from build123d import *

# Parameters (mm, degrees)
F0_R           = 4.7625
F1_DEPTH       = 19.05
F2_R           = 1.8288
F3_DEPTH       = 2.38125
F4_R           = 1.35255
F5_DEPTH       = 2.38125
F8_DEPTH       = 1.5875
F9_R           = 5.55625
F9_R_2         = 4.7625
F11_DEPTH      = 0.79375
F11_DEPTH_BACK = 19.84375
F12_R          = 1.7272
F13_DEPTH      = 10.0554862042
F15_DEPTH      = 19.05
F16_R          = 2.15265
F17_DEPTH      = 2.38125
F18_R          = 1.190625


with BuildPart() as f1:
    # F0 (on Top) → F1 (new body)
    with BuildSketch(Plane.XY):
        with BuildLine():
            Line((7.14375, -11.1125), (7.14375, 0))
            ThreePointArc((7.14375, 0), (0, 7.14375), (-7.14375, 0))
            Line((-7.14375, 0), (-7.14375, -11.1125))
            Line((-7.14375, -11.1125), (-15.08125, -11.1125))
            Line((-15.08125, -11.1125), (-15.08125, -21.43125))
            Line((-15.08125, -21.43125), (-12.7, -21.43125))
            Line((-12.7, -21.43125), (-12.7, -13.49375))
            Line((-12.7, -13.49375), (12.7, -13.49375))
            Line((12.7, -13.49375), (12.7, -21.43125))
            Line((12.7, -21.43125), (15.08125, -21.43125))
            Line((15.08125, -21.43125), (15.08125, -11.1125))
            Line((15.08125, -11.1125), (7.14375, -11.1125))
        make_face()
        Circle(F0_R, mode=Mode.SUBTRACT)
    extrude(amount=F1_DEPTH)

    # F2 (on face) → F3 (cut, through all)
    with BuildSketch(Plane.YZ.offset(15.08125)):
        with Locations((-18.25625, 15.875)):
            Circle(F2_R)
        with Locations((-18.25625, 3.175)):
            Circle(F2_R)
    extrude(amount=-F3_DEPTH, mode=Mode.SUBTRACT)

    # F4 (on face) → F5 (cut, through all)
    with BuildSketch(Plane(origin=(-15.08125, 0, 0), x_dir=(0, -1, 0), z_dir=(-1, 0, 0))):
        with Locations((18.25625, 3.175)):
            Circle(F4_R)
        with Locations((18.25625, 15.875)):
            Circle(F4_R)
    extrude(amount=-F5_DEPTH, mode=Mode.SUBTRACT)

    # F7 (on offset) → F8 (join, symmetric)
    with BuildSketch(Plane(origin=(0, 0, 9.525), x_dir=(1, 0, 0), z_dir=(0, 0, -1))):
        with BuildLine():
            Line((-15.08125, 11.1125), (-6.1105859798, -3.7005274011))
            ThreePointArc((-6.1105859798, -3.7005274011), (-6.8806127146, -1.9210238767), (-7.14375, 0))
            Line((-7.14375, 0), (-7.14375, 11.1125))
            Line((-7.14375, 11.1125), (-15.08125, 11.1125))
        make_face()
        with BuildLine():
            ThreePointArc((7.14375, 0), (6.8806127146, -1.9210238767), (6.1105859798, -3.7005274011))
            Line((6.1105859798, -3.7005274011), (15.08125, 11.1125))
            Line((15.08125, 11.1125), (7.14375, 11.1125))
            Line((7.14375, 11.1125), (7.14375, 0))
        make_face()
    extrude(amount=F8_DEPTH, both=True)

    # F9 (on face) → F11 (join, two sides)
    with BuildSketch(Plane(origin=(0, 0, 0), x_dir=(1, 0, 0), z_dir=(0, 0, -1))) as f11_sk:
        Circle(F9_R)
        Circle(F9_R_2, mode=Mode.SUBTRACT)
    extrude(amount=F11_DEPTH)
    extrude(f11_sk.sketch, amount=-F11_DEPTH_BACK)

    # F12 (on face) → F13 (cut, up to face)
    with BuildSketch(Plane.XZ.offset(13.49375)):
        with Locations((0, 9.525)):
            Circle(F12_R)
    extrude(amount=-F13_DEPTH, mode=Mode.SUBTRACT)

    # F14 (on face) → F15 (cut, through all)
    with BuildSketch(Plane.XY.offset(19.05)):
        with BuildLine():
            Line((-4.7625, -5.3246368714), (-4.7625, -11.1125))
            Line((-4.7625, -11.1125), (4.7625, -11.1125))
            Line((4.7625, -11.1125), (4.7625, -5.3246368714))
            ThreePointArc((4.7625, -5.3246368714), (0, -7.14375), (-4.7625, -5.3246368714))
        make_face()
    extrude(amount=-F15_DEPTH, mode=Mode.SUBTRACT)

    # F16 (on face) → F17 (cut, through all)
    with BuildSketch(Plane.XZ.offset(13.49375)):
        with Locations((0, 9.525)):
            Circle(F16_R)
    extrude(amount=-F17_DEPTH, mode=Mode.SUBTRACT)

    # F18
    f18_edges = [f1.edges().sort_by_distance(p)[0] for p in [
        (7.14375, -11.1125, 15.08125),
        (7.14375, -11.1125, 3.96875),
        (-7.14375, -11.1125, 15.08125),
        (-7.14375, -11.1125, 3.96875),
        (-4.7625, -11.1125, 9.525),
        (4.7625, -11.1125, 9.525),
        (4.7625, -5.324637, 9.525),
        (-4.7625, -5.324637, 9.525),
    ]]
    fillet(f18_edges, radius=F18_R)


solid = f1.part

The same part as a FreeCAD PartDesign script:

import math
import FreeCAD as App
import Part
import Sketcher
from FreeCAD import Vector
Q = App.Units.Quantity


def edges_at(feature, points):
    """Names of the edges that pass closest to the given points."""
    edges = feature.Shape.Edges
    near = lambda p: min(range(len(edges)), key=lambda i: edges[i].distToShape(Part.Vertex(*p))[0])
    return sorted({f"Edge{near(p) + 1}" for p in points})

doc = App.newDocument("Part")
body = doc.addObject("PartDesign::Body", "Body")

sketch1 = body.newObject("Sketcher::SketchObject", "Sketch")
sketch1.AttachmentSupport = (doc.getObject("XY_Plane"), [""])
sketch1.MapMode = "FlatFace"
sketch1.addGeometry(Part.LineSegment(Vector(7.14375, -11.1125, 0), Vector(7.14375, 0, 0)), False)
sketch1.addGeometry(Part.ArcOfCircle(Part.Circle(Vector(0, 0, 0), Vector(0, 0, 1), 7.14375), math.radians(0), math.radians(180)), False)
sketch1.addGeometry(Part.LineSegment(Vector(-7.14375, 0, 0), Vector(-7.14375, -11.1125, 0)), False)
sketch1.addGeometry(Part.LineSegment(Vector(-7.14375, -11.1125, 0), Vector(-15.08125, -11.1125, 0)), False)
sketch1.addGeometry(Part.LineSegment(Vector(-15.08125, -11.1125, 0), Vector(-15.08125, -21.43125, 0)), False)
sketch1.addGeometry(Part.LineSegment(Vector(-15.08125, -21.43125, 0), Vector(-12.7, -21.43125, 0)), False)
sketch1.addGeometry(Part.LineSegment(Vector(-12.7, -21.43125, 0), Vector(-12.7, -13.49375, 0)), False)
sketch1.addGeometry(Part.LineSegment(Vector(-12.7, -13.49375, 0), Vector(12.7, -13.49375, 0)), False)
sketch1.addGeometry(Part.LineSegment(Vector(12.7, -13.49375, 0), Vector(12.7, -21.43125, 0)), False)
sketch1.addGeometry(Part.LineSegment(Vector(12.7, -21.43125, 0), Vector(15.08125, -21.43125, 0)), False)
sketch1.addGeometry(Part.LineSegment(Vector(15.08125, -21.43125, 0), Vector(15.08125, -11.1125, 0)), False)
sketch1.addGeometry(Part.LineSegment(Vector(15.08125, -11.1125, 0), Vector(7.14375, -11.1125, 0)), False)
sketch1.addGeometry(Part.Circle(Vector(0, 0, 0), Vector(0, 0, 1), 4.7625), False)
sketch1.addConstraint(Sketcher.Constraint("Tangent", 0, 2, 1, 1))
sketch1.addConstraint(Sketcher.Constraint("Tangent", 1, 2, 2, 1))
sketch1.addConstraint(Sketcher.Constraint("Coincident", 2, 2, 3, 1))
sketch1.addConstraint(Sketcher.Constraint("Coincident", 3, 2, 4, 1))
sketch1.addConstraint(Sketcher.Constraint("Coincident", 4, 2, 5, 1))
sketch1.addConstraint(Sketcher.Constraint("Coincident", 5, 2, 6, 1))
sketch1.addConstraint(Sketcher.Constraint("Coincident", 6, 2, 7, 1))
sketch1.addConstraint(Sketcher.Constraint("Coincident", 7, 2, 8, 1))
sketch1.addConstraint(Sketcher.Constraint("Coincident", 8, 2, 9, 1))
sketch1.addConstraint(Sketcher.Constraint("Coincident", 9, 2, 10, 1))
sketch1.addConstraint(Sketcher.Constraint("Coincident", 10, 2, 11, 1))
sketch1.addConstraint(Sketcher.Constraint("Coincident", 11, 2, 0, 1))
sketch1.addConstraint(Sketcher.Constraint("Vertical", 0))
sketch1.addConstraint(Sketcher.Constraint("Vertical", 2))
sketch1.addConstraint(Sketcher.Constraint("Horizontal", 3))
sketch1.addConstraint(Sketcher.Constraint("Vertical", 4))
sketch1.addConstraint(Sketcher.Constraint("Horizontal", 5))
sketch1.addConstraint(Sketcher.Constraint("Vertical", 6))
sketch1.addConstraint(Sketcher.Constraint("Horizontal", 7))
sketch1.addConstraint(Sketcher.Constraint("Vertical", 8))
sketch1.addConstraint(Sketcher.Constraint("Horizontal", 9))
sketch1.addConstraint(Sketcher.Constraint("Vertical", 10))
sketch1.addConstraint(Sketcher.Constraint("Horizontal", 11))
sketch1.addConstraint(Sketcher.Constraint("Coincident", 1, 3, -1, 1))
sketch1.addConstraint(Sketcher.Constraint("Coincident", 12, 3, -1, 1))
sketch1.addConstraint(Sketcher.Constraint("Symmetric", 5, 2, 8, 2, -2))
sketch1.addConstraint(Sketcher.Constraint("Symmetric", 3, 2, 10, 2, -2))
sketch1.addConstraint(Sketcher.Constraint("Equal", 11, 6))
sketch1.addConstraint(Sketcher.Constraint("DistanceX", 7, 1, 7, 2, Q("1 in")))
sketch1.addConstraint(Sketcher.Constraint("Diameter", 12, Q("0.375 in")))
sketch1.addConstraint(Sketcher.Constraint("Radius", 1, Q("0.28125 in")))
sketch1.addConstraint(Sketcher.Constraint("DistanceX", 3, 2, 3, 1, Q("0.3125 in")))
sketch1.addConstraint(Sketcher.Constraint("DistanceY", 0, 1, 0, 2, Q("0.4375 in")))
sketch1.addConstraint(Sketcher.Constraint("DistanceY", 4, 2, 4, 1, Q("0.40625 in")))
pad1 = body.newObject("PartDesign::Pad", "Pad")
pad1.Profile = sketch1
pad1.Length = Q("0.75 in")

sketch2 = body.newObject("Sketcher::SketchObject", "Sketch001")
sketch2.AttachmentSupport = (doc.getObject("YZ_Plane"), [""])
sketch2.MapMode = "FlatFace"
sketch2.AttachmentOffset = App.Placement(Vector(0, 0, 0.59375 * 25.4), App.Rotation())
sketch2.addGeometry(Part.Circle(Vector(-18.25625, 15.875, 0), Vector(0, 0, 1), 1.8288), False)
sketch2.addGeometry(Part.Circle(Vector(-18.25625, 3.175, 0), Vector(0, 0, 1), 1.8288), False)
sketch2.addConstraint(Sketcher.Constraint("Equal", 0, 1))
sketch2.addConstraint(Sketcher.Constraint("Vertical", 0, 3, 1, 3))
sketch2.addConstraint(Sketcher.Constraint("Diameter", 0, Q("0.144 in")))
sketch2.addConstraint(Sketcher.Constraint("DistanceY", 1, 3, 0, 3, Q("0.5 in")))
sketch2.addConstraint(Sketcher.Constraint("DistanceX", 0, 3, -1, 1, Q("0.71875 in")))
sketch2.addConstraint(Sketcher.Constraint("DistanceY", -1, 1, 0, 3, Q("0.625 in")))
pocket1 = body.newObject("PartDesign::Pocket", "Pocket")
pocket1.Profile = sketch2
pocket1.Length = Q("0.09375 in")

sketch3 = body.newObject("Sketcher::SketchObject", "Sketch002")
sketch3.AttachmentSupport = (doc.getObject("YZ_Plane"), [""])
sketch3.MapMode = "FlatFace"
sketch3.AttachmentOffset = App.Placement(Vector(0, 0, -0.59375 * 25.4), App.Rotation())
sketch3.addGeometry(Part.Circle(Vector(-18.25625, 3.175, 0), Vector(0, 0, 1), 1.35255), False)
sketch3.addGeometry(Part.Circle(Vector(-18.25625, 15.875, 0), Vector(0, 0, 1), 1.35255), False)
sketch3.addConstraint(Sketcher.Constraint("Equal", 0, 1))
sketch3.addConstraint(Sketcher.Constraint("Vertical", 0, 3, 1, 3))
sketch3.addConstraint(Sketcher.Constraint("Diameter", 0, Q("0.1065 in")))
sketch3.addConstraint(Sketcher.Constraint("DistanceY", 0, 3, 1, 3, Q("0.5 in")))
sketch3.addConstraint(Sketcher.Constraint("DistanceX", 0, 3, -1, 1, Q("0.71875 in")))
sketch3.addConstraint(Sketcher.Constraint("DistanceY", -1, 1, 0, 3, Q("0.125 in")))
pocket2 = body.newObject("PartDesign::Pocket", "Pocket001")
pocket2.Profile = sketch3
pocket2.Type = "ThroughAll"
pocket2.Reversed = True

sketch4 = body.newObject("Sketcher::SketchObject", "Sketch003")
sketch4.AttachmentSupport = (doc.getObject("XY_Plane"), [""])
sketch4.MapMode = "FlatFace"
sketch4.AttachmentOffset = App.Placement(Vector(0, 0, 0.375 * 25.4), App.Rotation())
sketch4.addGeometry(Part.LineSegment(Vector(-15.08125, -11.1125, 0), Vector(-6.110586, 3.700527, 0)), False)
sketch4.addGeometry(Part.ArcOfCircle(Part.Circle(Vector(0, 0, 0), Vector(0, 0, 1), 7.14375), math.radians(148.801201), math.radians(180)), False)
sketch4.addGeometry(Part.LineSegment(Vector(-7.14375, 0, 0), Vector(-7.14375, -11.1125, 0)), False)
sketch4.addGeometry(Part.LineSegment(Vector(-7.14375, -11.1125, 0), Vector(-15.08125, -11.1125, 0)), False)
sketch4.addGeometry(Part.ArcOfCircle(Part.Circle(Vector(0, 0, 0), Vector(0, 0, 1), 7.14375), math.radians(0), math.radians(31.198799)), False)
sketch4.addGeometry(Part.LineSegment(Vector(6.110586, 3.700527, 0), Vector(15.08125, -11.1125, 0)), False)
sketch4.addGeometry(Part.LineSegment(Vector(15.08125, -11.1125, 0), Vector(7.14375, -11.1125, 0)), False)
sketch4.addGeometry(Part.LineSegment(Vector(7.14375, -11.1125, 0), Vector(7.14375, 0, 0)), False)
sketch4.addConstraint(Sketcher.Constraint("Tangent", 0, 2, 1, 1))
sketch4.addConstraint(Sketcher.Constraint("Tangent", 1, 2, 2, 1))
sketch4.addConstraint(Sketcher.Constraint("Coincident", 2, 2, 3, 1))
sketch4.addConstraint(Sketcher.Constraint("Coincident", 3, 2, 0, 1))
sketch4.addConstraint(Sketcher.Constraint("Tangent", 4, 2, 5, 1))
sketch4.addConstraint(Sketcher.Constraint("Coincident", 5, 2, 6, 1))
sketch4.addConstraint(Sketcher.Constraint("Coincident", 6, 2, 7, 1))
sketch4.addConstraint(Sketcher.Constraint("Tangent", 7, 2, 4, 1))
sketch4.addConstraint(Sketcher.Constraint("Vertical", 2))
sketch4.addConstraint(Sketcher.Constraint("Horizontal", 3))
sketch4.addConstraint(Sketcher.Constraint("Horizontal", 6))
sketch4.addConstraint(Sketcher.Constraint("Vertical", 7))
sketch4.addConstraint(Sketcher.Constraint("Coincident", 1, 3, -1, 1))
sketch4.addConstraint(Sketcher.Constraint("Coincident", 4, 3, -1, 1))
sketch4.addConstraint(Sketcher.Constraint("Equal", 1, 4))
sketch4.addConstraint(Sketcher.Constraint("Symmetric", 3, 2, 5, 2, -2))
sketch4.addConstraint(Sketcher.Constraint("Radius", 1, Q("0.28125 in")))
sketch4.addConstraint(Sketcher.Constraint("DistanceX", 3, 2, 3, 1, Q("0.3125 in")))
sketch4.addConstraint(Sketcher.Constraint("DistanceY", 2, 2, 2, 1, Q("0.4375 in")))
pad2 = body.newObject("PartDesign::Pad", "Pad001")
pad2.Profile = sketch4
pad2.Length = Q("0.125 in")
pad2.Midplane = True

sketch5 = body.newObject("Sketcher::SketchObject", "Sketch004")
sketch5.AttachmentSupport = (doc.getObject("XY_Plane"), [""])
sketch5.MapMode = "FlatFace"
sketch5.addGeometry(Part.Circle(Vector(0, 0, 0), Vector(0, 0, 1), 5.55625), False)
sketch5.addGeometry(Part.Circle(Vector(0, 0, 0), Vector(0, 0, 1), 4.7625), False)
sketch5.addConstraint(Sketcher.Constraint("Coincident", 0, 3, -1, 1))
sketch5.addConstraint(Sketcher.Constraint("Coincident", 1, 3, -1, 1))
sketch5.addConstraint(Sketcher.Constraint("Diameter", 0, Q("0.4375 in")))
sketch5.addConstraint(Sketcher.Constraint("Diameter", 1, Q("0.375 in")))
pad3 = body.newObject("PartDesign::Pad", "Pad002")
pad3.Profile = sketch5
pad3.Type = "TwoLengths"
pad3.Length = Q("0.03125 in")
pad3.Length2 = Q("0.78125 in")
pad3.Reversed = True

sketch6 = body.newObject("Sketcher::SketchObject", "Sketch005")
sketch6.AttachmentSupport = (doc.getObject("XZ_Plane"), [""])
sketch6.MapMode = "FlatFace"
sketch6.AttachmentOffset = App.Placement(Vector(0, 0, 0.53125 * 25.4), App.Rotation())
sketch6.addGeometry(Part.Circle(Vector(0, 9.525, 0), Vector(0, 0, 1), 1.7272), False)
sketch6.addConstraint(Sketcher.Constraint("PointOnObject", 0, 3, -2))
sketch6.addConstraint(Sketcher.Constraint("Diameter", 0, Q("0.136 in")))
sketch6.addConstraint(Sketcher.Constraint("DistanceY", -1, 1, 0, 3, Q("0.375 in")))
pocket3 = body.newObject("PartDesign::Pocket", "Pocket002")
pocket3.Profile = sketch6
pocket3.Length = 10.055486

sketch7 = body.newObject("Sketcher::SketchObject", "Sketch006")
sketch7.AttachmentSupport = (doc.getObject("XY_Plane"), [""])
sketch7.MapMode = "FlatFace"
sketch7.AttachmentOffset = App.Placement(Vector(0, 0, 0.75 * 25.4), App.Rotation())
sketch7.addGeometry(Part.LineSegment(Vector(-4.7625, -5.324637, 0), Vector(-4.7625, -11.1125, 0)), False)
sketch7.addGeometry(Part.LineSegment(Vector(-4.7625, -11.1125, 0), Vector(4.7625, -11.1125, 0)), False)
sketch7.addGeometry(Part.LineSegment(Vector(4.7625, -11.1125, 0), Vector(4.7625, -5.324637, 0)), False)
sketch7.addGeometry(Part.ArcOfCircle(Part.Circle(Vector(0, 0, 0), Vector(0, 0, 1), 7.14375), math.radians(-131.810315), math.radians(-48.189685)), False)
sketch7.addConstraint(Sketcher.Constraint("Coincident", 0, 2, 1, 1))
sketch7.addConstraint(Sketcher.Constraint("Coincident", 1, 2, 2, 1))
sketch7.addConstraint(Sketcher.Constraint("Coincident", 2, 2, 3, 2))
sketch7.addConstraint(Sketcher.Constraint("Coincident", 3, 1, 0, 1))
sketch7.addConstraint(Sketcher.Constraint("Vertical", 0))
sketch7.addConstraint(Sketcher.Constraint("Horizontal", 1))
sketch7.addConstraint(Sketcher.Constraint("Vertical", 2))
sketch7.addConstraint(Sketcher.Constraint("Coincident", 3, 3, -1, 1))
sketch7.addConstraint(Sketcher.Constraint("Horizontal", 2, 2, 3, 1))
sketch7.addConstraint(Sketcher.Constraint("Radius", 3, Q("0.28125 in")))
sketch7.addConstraint(Sketcher.Constraint("DistanceX", 1, 1, 1, 2, Q("0.375 in")))
sketch7.addConstraint(Sketcher.Constraint("DistanceY", 0, 2, -1, 1, Q("0.4375 in")))
pocket4 = body.newObject("PartDesign::Pocket", "Pocket003")
pocket4.Profile = sketch7
pocket4.Type = "ThroughAll"

sketch8 = body.newObject("Sketcher::SketchObject", "Sketch007")
sketch8.AttachmentSupport = (doc.getObject("XZ_Plane"), [""])
sketch8.MapMode = "FlatFace"
sketch8.AttachmentOffset = App.Placement(Vector(0, 0, 0.53125 * 25.4), App.Rotation())
sketch8.addGeometry(Part.Circle(Vector(0, 9.525, 0), Vector(0, 0, 1), 2.15265), False)
sketch8.addConstraint(Sketcher.Constraint("PointOnObject", 0, 3, -2))
sketch8.addConstraint(Sketcher.Constraint("Diameter", 0, Q("0.1695 in")))
sketch8.addConstraint(Sketcher.Constraint("DistanceY", -1, 1, 0, 3, Q("0.375 in")))
pocket5 = body.newObject("PartDesign::Pocket", "Pocket004")
pocket5.Profile = sketch8
pocket5.Length = Q("0.09375 in")
doc.recompute()

fillet = body.newObject("PartDesign::Fillet", "Fillet")
fillet.Base = (pocket5, edges_at(pocket5, [
    (7.144, -11.113, 15.081),
    (7.144, -11.113, 3.969),
    (-7.144, -11.113, 15.081),
    (-7.144, -11.113, 3.969),
    (-4.763, -11.113, 9.525),
    (4.763, -11.113, 9.525),
    (4.763, -5.325, 9.525),
    (-4.763, -5.325, 9.525),
]))
fillet.Radius = Q("0.046875 in")

doc.recompute()
